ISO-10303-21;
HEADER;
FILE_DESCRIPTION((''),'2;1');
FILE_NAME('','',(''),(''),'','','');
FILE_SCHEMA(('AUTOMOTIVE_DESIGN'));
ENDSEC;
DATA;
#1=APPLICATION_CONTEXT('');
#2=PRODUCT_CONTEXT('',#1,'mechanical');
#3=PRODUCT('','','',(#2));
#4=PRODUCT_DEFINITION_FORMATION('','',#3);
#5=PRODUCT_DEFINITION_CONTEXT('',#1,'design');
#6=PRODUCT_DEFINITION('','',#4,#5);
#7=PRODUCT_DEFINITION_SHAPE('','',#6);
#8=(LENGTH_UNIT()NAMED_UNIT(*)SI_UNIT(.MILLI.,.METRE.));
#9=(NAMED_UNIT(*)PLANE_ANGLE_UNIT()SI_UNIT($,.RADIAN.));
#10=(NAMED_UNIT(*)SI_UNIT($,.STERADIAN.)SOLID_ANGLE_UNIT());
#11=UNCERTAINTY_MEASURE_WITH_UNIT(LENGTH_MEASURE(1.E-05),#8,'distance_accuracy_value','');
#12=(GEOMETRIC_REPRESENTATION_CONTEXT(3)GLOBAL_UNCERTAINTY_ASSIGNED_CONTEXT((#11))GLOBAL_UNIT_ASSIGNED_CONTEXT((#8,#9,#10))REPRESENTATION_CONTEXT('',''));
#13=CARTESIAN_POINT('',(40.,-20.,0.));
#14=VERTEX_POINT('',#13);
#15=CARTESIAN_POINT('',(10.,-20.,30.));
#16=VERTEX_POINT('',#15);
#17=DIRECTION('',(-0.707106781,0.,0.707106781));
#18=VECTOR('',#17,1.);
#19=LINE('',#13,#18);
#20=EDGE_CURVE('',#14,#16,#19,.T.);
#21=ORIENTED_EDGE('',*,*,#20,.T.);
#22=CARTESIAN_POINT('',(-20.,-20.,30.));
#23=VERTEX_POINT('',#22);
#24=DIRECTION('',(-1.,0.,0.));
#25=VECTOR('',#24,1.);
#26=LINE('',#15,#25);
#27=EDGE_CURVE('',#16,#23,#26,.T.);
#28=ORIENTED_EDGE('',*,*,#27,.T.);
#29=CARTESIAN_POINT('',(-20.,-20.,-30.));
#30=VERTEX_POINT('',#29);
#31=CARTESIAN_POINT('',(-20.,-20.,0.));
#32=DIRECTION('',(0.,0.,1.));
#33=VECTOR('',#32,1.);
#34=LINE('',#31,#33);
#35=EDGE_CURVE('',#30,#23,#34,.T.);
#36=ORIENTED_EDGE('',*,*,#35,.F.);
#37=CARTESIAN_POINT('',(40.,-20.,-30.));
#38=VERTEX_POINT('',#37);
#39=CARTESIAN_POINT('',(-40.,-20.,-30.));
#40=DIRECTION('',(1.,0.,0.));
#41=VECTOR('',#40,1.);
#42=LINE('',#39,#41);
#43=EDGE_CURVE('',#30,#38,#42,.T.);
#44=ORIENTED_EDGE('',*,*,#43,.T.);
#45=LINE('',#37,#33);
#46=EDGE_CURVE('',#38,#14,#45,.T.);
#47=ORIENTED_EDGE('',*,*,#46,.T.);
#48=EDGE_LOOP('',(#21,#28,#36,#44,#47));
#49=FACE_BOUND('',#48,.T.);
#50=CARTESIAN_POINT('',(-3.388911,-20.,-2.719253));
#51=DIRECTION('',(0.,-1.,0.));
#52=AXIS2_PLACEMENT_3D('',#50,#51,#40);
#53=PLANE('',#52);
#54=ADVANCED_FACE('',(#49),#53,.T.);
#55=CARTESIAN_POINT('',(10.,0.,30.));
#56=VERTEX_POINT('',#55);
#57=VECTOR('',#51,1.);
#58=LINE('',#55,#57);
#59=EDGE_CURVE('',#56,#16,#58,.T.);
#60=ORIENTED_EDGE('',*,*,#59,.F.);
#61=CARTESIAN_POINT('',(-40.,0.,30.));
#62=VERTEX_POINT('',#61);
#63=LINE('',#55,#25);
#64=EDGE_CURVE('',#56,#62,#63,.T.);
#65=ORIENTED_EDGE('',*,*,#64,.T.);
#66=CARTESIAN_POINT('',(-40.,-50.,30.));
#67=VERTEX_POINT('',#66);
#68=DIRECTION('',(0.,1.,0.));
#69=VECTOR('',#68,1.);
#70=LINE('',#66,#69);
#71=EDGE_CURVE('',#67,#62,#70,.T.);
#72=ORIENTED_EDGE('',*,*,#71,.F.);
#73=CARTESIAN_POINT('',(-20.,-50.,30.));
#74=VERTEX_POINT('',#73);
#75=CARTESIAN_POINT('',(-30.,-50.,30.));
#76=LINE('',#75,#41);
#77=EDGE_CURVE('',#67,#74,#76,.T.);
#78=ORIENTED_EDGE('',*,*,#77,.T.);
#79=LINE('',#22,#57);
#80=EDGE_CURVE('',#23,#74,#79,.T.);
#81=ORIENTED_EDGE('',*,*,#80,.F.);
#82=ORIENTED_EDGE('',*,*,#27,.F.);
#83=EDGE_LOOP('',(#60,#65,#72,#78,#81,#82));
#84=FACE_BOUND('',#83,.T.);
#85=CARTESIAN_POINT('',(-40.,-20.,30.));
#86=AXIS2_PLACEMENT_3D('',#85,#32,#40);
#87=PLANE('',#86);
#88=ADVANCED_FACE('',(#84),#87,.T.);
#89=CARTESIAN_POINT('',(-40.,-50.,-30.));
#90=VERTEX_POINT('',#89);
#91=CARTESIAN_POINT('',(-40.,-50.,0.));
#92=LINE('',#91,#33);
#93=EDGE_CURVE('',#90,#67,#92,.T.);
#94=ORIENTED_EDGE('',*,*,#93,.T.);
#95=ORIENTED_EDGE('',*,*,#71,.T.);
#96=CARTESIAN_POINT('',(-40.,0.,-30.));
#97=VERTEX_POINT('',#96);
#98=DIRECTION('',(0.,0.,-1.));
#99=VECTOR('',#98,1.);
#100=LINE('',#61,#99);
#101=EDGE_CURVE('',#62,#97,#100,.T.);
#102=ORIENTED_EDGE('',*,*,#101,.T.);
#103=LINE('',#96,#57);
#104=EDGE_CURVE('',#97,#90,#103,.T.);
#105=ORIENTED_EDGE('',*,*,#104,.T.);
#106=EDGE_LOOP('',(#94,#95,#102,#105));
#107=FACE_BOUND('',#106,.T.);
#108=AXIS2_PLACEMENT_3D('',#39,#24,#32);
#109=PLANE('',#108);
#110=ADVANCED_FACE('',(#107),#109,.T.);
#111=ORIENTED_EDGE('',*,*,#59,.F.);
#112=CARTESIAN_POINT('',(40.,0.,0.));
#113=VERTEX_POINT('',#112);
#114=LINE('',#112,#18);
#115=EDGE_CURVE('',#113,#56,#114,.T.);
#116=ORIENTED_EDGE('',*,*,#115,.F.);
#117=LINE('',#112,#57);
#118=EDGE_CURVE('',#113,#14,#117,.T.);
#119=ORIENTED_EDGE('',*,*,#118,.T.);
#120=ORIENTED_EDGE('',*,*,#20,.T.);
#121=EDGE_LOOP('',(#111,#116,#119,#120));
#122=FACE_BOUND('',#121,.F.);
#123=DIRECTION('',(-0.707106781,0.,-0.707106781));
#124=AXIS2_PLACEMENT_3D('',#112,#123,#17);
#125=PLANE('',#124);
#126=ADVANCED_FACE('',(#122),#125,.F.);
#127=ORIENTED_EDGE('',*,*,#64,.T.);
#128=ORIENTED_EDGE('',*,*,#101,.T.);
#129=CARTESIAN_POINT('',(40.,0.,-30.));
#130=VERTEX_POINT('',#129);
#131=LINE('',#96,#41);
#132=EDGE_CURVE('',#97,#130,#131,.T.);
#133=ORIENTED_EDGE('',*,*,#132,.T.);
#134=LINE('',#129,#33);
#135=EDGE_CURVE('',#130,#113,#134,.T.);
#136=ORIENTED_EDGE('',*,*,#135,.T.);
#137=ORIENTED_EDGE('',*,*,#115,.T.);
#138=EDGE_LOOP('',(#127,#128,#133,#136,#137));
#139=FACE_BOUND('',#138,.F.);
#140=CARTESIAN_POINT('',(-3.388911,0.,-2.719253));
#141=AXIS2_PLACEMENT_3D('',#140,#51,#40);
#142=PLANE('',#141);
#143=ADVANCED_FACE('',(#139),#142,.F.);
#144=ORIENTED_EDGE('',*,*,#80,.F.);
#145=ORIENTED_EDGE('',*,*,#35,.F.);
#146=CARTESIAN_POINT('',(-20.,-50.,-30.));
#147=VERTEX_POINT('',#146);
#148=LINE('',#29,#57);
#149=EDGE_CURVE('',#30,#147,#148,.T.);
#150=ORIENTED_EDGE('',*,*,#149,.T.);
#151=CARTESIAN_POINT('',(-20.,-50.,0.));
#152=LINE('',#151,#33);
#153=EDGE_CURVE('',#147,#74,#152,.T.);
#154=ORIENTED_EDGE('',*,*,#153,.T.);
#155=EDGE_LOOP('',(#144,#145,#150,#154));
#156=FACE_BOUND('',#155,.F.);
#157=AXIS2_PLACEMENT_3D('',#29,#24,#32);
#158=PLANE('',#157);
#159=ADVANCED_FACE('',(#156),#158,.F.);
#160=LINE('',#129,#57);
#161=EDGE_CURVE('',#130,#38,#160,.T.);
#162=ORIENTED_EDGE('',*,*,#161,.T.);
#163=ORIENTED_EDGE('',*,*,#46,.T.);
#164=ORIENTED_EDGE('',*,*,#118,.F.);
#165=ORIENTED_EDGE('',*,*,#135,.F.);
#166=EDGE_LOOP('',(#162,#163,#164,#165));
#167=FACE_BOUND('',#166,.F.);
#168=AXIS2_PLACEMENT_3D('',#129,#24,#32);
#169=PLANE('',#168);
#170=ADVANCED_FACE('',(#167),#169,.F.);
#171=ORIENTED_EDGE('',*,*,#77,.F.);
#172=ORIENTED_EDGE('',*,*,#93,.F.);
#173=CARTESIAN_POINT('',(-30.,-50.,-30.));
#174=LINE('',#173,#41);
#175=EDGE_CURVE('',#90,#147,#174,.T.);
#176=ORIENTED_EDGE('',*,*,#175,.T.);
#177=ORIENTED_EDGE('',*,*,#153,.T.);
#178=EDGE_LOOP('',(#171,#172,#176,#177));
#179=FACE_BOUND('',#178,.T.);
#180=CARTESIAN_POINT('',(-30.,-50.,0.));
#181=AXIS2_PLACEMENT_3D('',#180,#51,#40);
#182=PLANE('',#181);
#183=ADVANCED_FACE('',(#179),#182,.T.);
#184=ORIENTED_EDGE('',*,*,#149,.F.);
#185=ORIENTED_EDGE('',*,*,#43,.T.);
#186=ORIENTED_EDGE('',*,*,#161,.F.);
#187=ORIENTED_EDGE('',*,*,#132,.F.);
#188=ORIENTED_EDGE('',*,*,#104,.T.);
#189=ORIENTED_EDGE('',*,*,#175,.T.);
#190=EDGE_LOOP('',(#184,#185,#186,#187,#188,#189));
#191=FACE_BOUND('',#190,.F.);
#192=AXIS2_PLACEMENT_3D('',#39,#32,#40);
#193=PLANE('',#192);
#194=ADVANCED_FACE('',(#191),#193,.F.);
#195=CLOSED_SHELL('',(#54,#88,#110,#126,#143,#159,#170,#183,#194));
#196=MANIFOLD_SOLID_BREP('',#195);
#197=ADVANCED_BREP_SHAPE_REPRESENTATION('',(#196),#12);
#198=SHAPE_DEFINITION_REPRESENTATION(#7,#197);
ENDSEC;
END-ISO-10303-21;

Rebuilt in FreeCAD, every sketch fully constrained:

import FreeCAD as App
import Part
import Sketcher

V = App.Vector
Q = App.Units.Quantity

doc = App.newDocument("Part")
body = doc.addObject("PartDesign::Body", "Body")

# Sketch on XZ plane
sketch1 = body.newObject("Sketcher::SketchObject", "Sketch")
sketch1.AttachmentSupport = (doc.getObject("XZ_Plane"), [""])
sketch1.MapMode = "FlatFace"
sketch1.addGeometry([
    Part.LineSegment(V(-40, 30, 0), V(-40, -30, 0)),  # 0
    Part.LineSegment(V(-40, -30, 0), V(40, -30, 0)),  # 1
    Part.LineSegment(V(40, -30, 0), V(40, 0, 0)),  # 2
    Part.LineSegment(V(40, 0, 0), V(10, 30, 0)),  # 3
    Part.LineSegment(V(10, 30, 0), V(-40, 30, 0)),  # 4
], False)
sketch1.addConstraint([
    Sketcher.Constraint("Coincident", 0, 2, 1, 1),
    Sketcher.Constraint("Coincident", 1, 2, 2, 1),
    Sketcher.Constraint("Coincident", 2, 2, 3, 1),
    Sketcher.Constraint("Coincident", 3, 2, 4, 1),
    Sketcher.Constraint("Coincident", 4, 2, 0, 1),
    Sketcher.Constraint("Vertical", 0),
    Sketcher.Constraint("Horizontal", 1),
    Sketcher.Constraint("Vertical", 2),
    Sketcher.Constraint("Horizontal", 4),
    Sketcher.Constraint("Symmetric", 1, 2, 4, 2, -1, 1),
    Sketcher.Constraint("PointOnObject", 2, 2, -1),
    Sketcher.Constraint("DistanceX", 1, 1, 1, 2, Q("80 mm")),
    Sketcher.Constraint("DistanceX", 4, 2, 4, 1, Q("50 mm")),
    Sketcher.Constraint("DistanceY", 0, 2, 0, 1, Q("60 mm")),
])
pad1 = body.newObject("PartDesign::Pad", "Pad")
pad1.Profile = sketch1
pad1.Length = 20

# Sketch on XZ plane
sketch2 = body.newObject("Sketcher::SketchObject", "Sketch001")
sketch2.AttachmentSupport = (doc.getObject("XZ_Plane"), [""])
sketch2.MapMode = "FlatFace"
sketch2.AttachmentOffset = App.Placement(V(0, 0, 20), App.Rotation())
sketch2.addGeometry([
    Part.LineSegment(V(-40, 30, 0), V(-40, -30, 0)),
    Part.LineSegment(V(-40, -30, 0), V(-20, -30, 0)),
    Part.LineSegment(V(-20, -30, 0), V(-20, 30, 0)),
    Part.LineSegment(V(-20, 30, 0), V(-40, 30, 0)),
], False)
sketch2.addConstraint([
    Sketcher.Constraint("Coincident", 0, 2, 1, 1),
    Sketcher.Constraint("Coincident", 1, 2, 2, 1),
    Sketcher.Constraint("Coincident", 2, 2, 3, 1),
    Sketcher.Constraint("Coincident", 3, 2, 0, 1),
    Sketcher.Constraint("Vertical", 0),
    Sketcher.Constraint("Horizontal", 1),
    Sketcher.Constraint("Vertical", 2),
    Sketcher.Constraint("Horizontal", 3),
    Sketcher.Constraint("DistanceX", 1, 1, 1, 2, Q("20 mm")),
    Sketcher.Constraint("DistanceY", 0, 2, 0, 1, Q("60 mm")),
    Sketcher.Constraint("DistanceX", 0, 2, -1, 1, Q("40 mm")),
    Sketcher.Constraint("DistanceY", 0, 2, -1, 1, Q("30 mm")),
])
pad2 = body.newObject("PartDesign::Pad", "Pad001")
pad2.Profile = sketch2
pad2.Length = 30

doc.recompute()
